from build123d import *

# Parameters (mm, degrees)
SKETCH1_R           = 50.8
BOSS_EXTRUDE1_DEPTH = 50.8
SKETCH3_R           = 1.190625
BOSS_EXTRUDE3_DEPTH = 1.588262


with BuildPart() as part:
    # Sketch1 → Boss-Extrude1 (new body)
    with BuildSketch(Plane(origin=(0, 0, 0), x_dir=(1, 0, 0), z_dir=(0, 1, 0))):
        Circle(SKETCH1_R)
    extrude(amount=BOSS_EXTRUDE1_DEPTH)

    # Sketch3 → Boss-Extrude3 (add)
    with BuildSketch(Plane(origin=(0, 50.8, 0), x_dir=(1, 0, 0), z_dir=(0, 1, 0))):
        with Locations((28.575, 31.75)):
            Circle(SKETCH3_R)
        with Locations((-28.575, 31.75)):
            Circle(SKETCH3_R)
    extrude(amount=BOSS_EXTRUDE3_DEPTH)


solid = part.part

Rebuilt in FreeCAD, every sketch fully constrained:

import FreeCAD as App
import Part
import Sketcher
Q = App.Units.Quantity

doc = App.newDocument("Part")
body = doc.addObject("PartDesign::Body", "Body")

# Sketch on XZ plane
sketch1 = doc.addObject("Sketcher::SketchObject", "Sketch")
body.addObject(sketch1)
sketch1.AttachmentSupport = (doc.XZ_Plane, [""])
sketch1.MapMode = "FlatFace"
sketch1.addGeometry(Part.Circle(App.Vector(0, 0, 0), App.Vector(0, 0, 1), 51), False)
sketch1.addConstraint(Sketcher.Constraint("Coincident", 0, 3, -1, 1))
sketch1.addConstraint(Sketcher.Constraint("Diameter", 0, Q("4 in")))
pad1 = doc.addObject("PartDesign::Pad", "Pad")
body.addObject(pad1)
pad1.Profile = sketch1
pad1.Length = Q("2 in")
pad1.Reversed = True

# Sketch on XZ plane
sketch2 = doc.addObject("Sketcher::SketchObject", "Sketch001")
body.addObject(sketch2)
sketch2.AttachmentSupport = (doc.XZ_Plane, [""])
sketch2.MapMode = "FlatFace"
sketch2.AttachmentOffset = App.Placement(App.Vector(0, 0, -2 * 25.4), App.Rotation())
sketch2.addGeometry(Part.Circle(App.Vector(28.6, -31.8, 0), App.Vector(0, 0, 1), 1.2), False)
sketch2.addGeometry(Part.Circle(App.Vector(-28.6, -31.8, 0), App.Vector(0, 0, 1), 1.2), False)
sketch2.addConstraint(Sketcher.Constraint("Equal", 0, 1))
sketch2.addConstraint(Sketcher.Constraint("Symmetric", 0, 3, 1, 3, -2))
sketch2.addConstraint(Sketcher.Constraint("Diameter", 0, Q("0.09375 in")))
sketch2.addConstraint(Sketcher.Constraint("DistanceY", 0, 3, -1, 1, Q("1.25 in")))
sketch2.addConstraint(Sketcher.Constraint("DistanceX", 1, 3, 0, 3, Q("2.25 in")))
pad2 = doc.addObject("PartDesign::Pad", "Pad001")
body.addObject(pad2)
pad2.Profile = sketch2
pad2.Length = 1.588262
pad2.Reversed = True

doc.recompute()
